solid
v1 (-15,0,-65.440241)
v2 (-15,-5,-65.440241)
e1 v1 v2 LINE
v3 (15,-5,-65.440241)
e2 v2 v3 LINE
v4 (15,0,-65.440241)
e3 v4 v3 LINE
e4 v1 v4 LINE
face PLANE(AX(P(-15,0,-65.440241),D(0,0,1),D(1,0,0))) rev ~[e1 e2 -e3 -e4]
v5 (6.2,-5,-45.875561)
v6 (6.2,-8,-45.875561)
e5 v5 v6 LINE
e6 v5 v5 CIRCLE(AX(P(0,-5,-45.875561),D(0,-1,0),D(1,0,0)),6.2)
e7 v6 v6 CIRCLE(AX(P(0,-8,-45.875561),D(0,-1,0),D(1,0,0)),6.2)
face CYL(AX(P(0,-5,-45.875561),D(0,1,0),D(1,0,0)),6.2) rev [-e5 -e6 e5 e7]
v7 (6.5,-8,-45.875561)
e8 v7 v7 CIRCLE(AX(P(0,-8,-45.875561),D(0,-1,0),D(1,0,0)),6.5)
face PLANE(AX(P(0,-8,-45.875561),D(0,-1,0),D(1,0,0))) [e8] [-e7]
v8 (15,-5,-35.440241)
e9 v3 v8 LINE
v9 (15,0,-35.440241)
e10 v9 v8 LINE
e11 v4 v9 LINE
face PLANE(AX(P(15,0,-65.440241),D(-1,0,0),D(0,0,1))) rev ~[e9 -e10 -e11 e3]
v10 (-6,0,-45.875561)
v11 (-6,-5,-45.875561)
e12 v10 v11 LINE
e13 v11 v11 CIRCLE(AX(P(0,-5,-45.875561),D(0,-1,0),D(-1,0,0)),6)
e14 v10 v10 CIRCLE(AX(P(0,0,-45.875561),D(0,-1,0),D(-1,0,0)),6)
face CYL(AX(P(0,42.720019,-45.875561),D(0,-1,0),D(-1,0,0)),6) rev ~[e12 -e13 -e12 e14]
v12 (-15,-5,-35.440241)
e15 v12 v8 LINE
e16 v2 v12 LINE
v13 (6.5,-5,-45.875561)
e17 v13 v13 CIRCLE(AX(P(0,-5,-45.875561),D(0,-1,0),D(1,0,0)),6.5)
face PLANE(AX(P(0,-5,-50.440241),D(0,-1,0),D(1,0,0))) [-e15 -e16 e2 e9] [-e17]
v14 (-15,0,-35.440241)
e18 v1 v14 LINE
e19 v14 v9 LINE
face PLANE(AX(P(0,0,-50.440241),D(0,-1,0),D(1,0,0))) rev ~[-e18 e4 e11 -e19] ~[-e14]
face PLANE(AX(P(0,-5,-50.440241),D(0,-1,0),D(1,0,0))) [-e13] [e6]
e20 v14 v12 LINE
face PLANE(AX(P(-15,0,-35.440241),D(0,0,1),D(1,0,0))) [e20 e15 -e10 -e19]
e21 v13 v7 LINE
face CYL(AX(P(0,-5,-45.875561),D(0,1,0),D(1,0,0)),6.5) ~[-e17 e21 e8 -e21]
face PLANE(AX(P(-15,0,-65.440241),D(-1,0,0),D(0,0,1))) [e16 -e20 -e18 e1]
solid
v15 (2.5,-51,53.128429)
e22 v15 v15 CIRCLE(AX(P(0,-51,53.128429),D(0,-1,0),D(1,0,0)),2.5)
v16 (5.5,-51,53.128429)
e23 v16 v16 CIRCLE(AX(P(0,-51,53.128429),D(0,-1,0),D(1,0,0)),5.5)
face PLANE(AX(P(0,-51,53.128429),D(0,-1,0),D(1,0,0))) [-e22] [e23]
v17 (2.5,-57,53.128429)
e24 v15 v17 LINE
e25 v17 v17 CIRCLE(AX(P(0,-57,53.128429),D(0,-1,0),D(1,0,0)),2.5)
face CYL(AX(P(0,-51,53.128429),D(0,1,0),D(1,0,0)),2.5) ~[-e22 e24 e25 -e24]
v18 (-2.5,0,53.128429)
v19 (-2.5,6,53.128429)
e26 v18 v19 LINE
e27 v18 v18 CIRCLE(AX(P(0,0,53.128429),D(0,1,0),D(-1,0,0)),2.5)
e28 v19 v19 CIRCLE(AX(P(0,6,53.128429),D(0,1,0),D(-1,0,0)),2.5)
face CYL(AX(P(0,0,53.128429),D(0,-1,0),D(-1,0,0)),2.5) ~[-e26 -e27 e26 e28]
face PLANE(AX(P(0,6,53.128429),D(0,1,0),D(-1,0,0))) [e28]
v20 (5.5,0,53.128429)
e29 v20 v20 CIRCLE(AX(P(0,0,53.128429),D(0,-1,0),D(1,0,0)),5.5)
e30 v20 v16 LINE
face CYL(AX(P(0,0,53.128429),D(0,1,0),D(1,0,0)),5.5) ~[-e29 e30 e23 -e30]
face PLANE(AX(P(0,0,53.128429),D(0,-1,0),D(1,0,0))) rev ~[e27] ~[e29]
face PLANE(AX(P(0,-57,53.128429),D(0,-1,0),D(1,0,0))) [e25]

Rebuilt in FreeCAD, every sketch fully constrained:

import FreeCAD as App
import Part
import Sketcher
from FreeCAD import Vector
Q = App.Units.Quantity

doc = App.newDocument("Part")
body = doc.addObject("PartDesign::Body", "Body")

# Sketch on XZ plane
sketch1 = body.newObject("Sketcher::SketchObject", "Sketch")
sketch1.AttachmentSupport = (doc.getObject("XZ_Plane"), [""])
sketch1.MapMode = "FlatFace"
sketch1.addGeometry([
    Part.Circle(Vector(0, 0, 0), Vector(0, 0, 1), 6),
    Part.Circle(Vector(0, 0, 0), Vector(0, 0, 1), 6),
], False)
sketch1.addConstraint([
    Sketcher.Constraint("Coincident", 0, 3, -1, 1),
    Sketcher.Constraint("Coincident", 1, 3, -1, 1),
    Sketcher.Constraint("Diameter", 0, Q("12 mm")),
    Sketcher.Constraint("Diameter", 1, Q("11.4 mm")),
])
pad1 = body.newObject("PartDesign::Pad", "Pad")
pad1.Profile = sketch1
pad1.Length = 50
body2 = doc.addObject("PartDesign::Body", "Body001")

# Sketch on XZ plane
sketch2 = body2.newObject("Sketcher::SketchObject", "Sketch001")
sketch2.AttachmentSupport = (doc.getObject("XZ_Plane001"), [""])
sketch2.MapMode = "FlatFace"
sketch2.addGeometry(Part.Circle(Vector(0, 53, 0), Vector(0, 0, 1), 6), False)
sketch2.addConstraint([
    Sketcher.Constraint("PointOnObject", 0, 3, -2),
    Sketcher.Constraint("Diameter", 0, Q("11 mm")),
    Sketcher.Constraint("DistanceY", -1, 1, 0, 3, Q("53.128429 mm")),
])
pad2 = body2.newObject("PartDesign::Pad", "Pad001")
pad2.Profile = sketch2
pad2.Length = 51

# Sketch on XZ plane
sketch3 = body2.newObject("Sketcher::SketchObject", "Sketch002")
sketch3.AttachmentSupport = (doc.getObject("XZ_Plane001"), [""])
sketch3.MapMode = "FlatFace"
sketch3.AttachmentOffset = App.Placement(Vector(0, 0, 51), App.Rotation())
sketch3.addGeometry(Part.Circle(Vector(0, 53.1, 0), Vector(0, 0, 1), 2.5), False)
sketch3.addConstraint([
    Sketcher.Constraint("PointOnObject", 0, 3, -2),
    Sketcher.Constraint("Diameter", 0, Q("5 mm")),
    Sketcher.Constraint("DistanceY", -1, 1, 0, 3, Q("53.128429 mm")),
])
pad3 = body2.newObject("PartDesign::Pad", "Pad002")
pad3.Profile = sketch3
pad3.Length = 6

# Sketch on XZ plane
sketch4 = body2.newObject("Sketcher::SketchObject", "Sketch003")
sketch4.AttachmentSupport = (doc.getObject("XZ_Plane001"), [""])
sketch4.MapMode = "FlatFace"
sketch4.addGeometry(Part.Circle(Vector(0, 53.1, 0), Vector(0, 0, 1), 2.5), False)
sketch4.addConstraint([
    Sketcher.Constraint("PointOnObject", 0, 3, -2),
    Sketcher.Constraint("Diameter", 0, Q("5 mm")),
    Sketcher.Constraint("DistanceY", -1, 1, 0, 3, Q("53.128429 mm")),
])
pad4 = body2.newObject("PartDesign::Pad", "Pad003")
pad4.Profile = sketch4
pad4.Length = 6
pad4.Reversed = True
body3 = doc.addObject("PartDesign::Body", "Body002")

# Sketch on XZ plane
sketch5 = body3.newObject("Sketcher::SketchObject", "Sketch004")
sketch5.AttachmentSupport = (doc.getObject("XZ_Plane002"), [""])
sketch5.MapMode = "FlatFace"
sketch5.addGeometry(Part.Circle(Vector(0, 22, 0), Vector(0, 0, 1), 8), False)
sketch5.addConstraint([
    Sketcher.Constraint("PointOnObject", 0, 3, -2),
    Sketcher.Constraint("Diameter", 0, Q("17 mm")),
    Sketcher.Constraint("DistanceY", -1, 1, 0, 3, Q("21.613053 mm")),
])
pad5 = body3.newObject("PartDesign::Pad", "Pad004")
pad5.Profile = sketch5
pad5.Length = 4

# Sketch on XZ plane
sketch6 = body3.newObject("Sketcher::SketchObject", "Sketch005")
sketch6.AttachmentSupport = (doc.getObject("XZ_Plane002"), [""])
sketch6.MapMode = "FlatFace"
sketch6.AttachmentOffset = App.Placement(Vector(0, 0, 4), App.Rotation())
sketch6.addGeometry(Part.Circle(Vector(0, 22, 0), Vector(0, 0, 1), 6), False)
sketch6.addConstraint([
    Sketcher.Constraint("PointOnObject", 0, 3, -2),
    Sketcher.Constraint("Diameter", 0, Q("11 mm")),
    Sketcher.Constraint("DistanceY", -1, 1, 0, 3, Q("21.613053 mm")),
])
pad6 = body3.newObject("PartDesign::Pad", "Pad005")
pad6.Profile = sketch6
pad6.Length = 39

# Sketch on XZ plane
sketch7 = body3.newObject("Sketcher::SketchObject", "Sketch006")
sketch7.AttachmentSupport = (doc.getObject("XZ_Plane002"), [""])
sketch7.MapMode = "FlatFace"
sketch7.AttachmentOffset = App.Placement(Vector(0, 0, 43), App.Rotation())
sketch7.addGeometry(Part.Circle(Vector(0, 21.6, 0), Vector(0, 0, 1), 2.5), False)
sketch7.addConstraint([
    Sketcher.Constraint("PointOnObject", 0, 3, -2),
    Sketcher.Constraint("Diameter", 0, Q("5 mm")),
    Sketcher.Constraint("DistanceY", -1, 1, 0, 3, Q("21.613053 mm")),
])
doc.recompute()
hole = body3.newObject("PartDesign::Hole", "Hole")
hole.Profile = sketch7
hole.ThreadType = "None"
hole.Diameter = 5
hole.DepthType = "Dimension"
hole.Depth = 8
hole.DrillPoint = "Angled"
hole.DrillPointAngle = 118
body4 = doc.addObject("PartDesign::Body", "Body003")

# Sketch on XZ plane
sketch8 = body4.newObject("Sketcher::SketchObject", "Sketch007")
sketch8.AttachmentSupport = (doc.getObject("XZ_Plane003"), [""])
sketch8.MapMode = "FlatFace"
sketch8.addGeometry([
    Part.LineSegment(Vector(-15, -35, 0), Vector(-15, -65, 0)),
    Part.LineSegment(Vector(-15, -65, 0), Vector(15, -65, 0)),
    Part.LineSegment(Vector(15, -65, 0), Vector(15, -35, 0)),
    Part.LineSegment(Vector(15, -35, 0), Vector(-15, -35, 0)),
], False)
sketch8.addConstraint([
    Sketcher.Constraint("Coincident", 0, 2, 1, 1),
    Sketcher.Constraint("Coincident", 1, 2, 2, 1),
    Sketcher.Constraint("Coincident", 2, 2, 3, 1),
    Sketcher.Constraint("Coincident", 3, 2, 0, 1),
    Sketcher.Constraint("Vertical", 0),
    Sketcher.Constraint("Horizontal", 1),
    Sketcher.Constraint("Vertical", 2),
    Sketcher.Constraint("Horizontal", 3),
    Sketcher.Constraint("Equal", 3, 0),
    Sketcher.Constraint("DistanceX", 1, 1, 1, 2, Q("30 mm")),
    Sketcher.Constraint("DistanceX", 0, 2, -1, 1, Q("15 mm")),
    Sketcher.Constraint("DistanceY", 0, 2, -1, 1, Q("65.440241 mm")),
])
pad7 = body4.newObject("PartDesign::Pad", "Pad006")
pad7.Profile = sketch8
pad7.Length = 5

# Sketch on XZ plane
sketch9 = body4.newObject("Sketcher::SketchObject", "Sketch008")
sketch9.AttachmentSupport = (doc.getObject("XZ_Plane003"), [""])
sketch9.MapMode = "FlatFace"
sketch9.addGeometry(Part.Circle(Vector(0, -46, 0), Vector(0, 0, 1), 6), False)
sketch9.addConstraint([
    Sketcher.Constraint("PointOnObject", 0, 3, -2),
    Sketcher.Constraint("Diameter", 0, Q("12 mm")),
    Sketcher.Constraint("DistanceY", 0, 3, -1, 1, Q("45.875561 mm")),
])
doc.recompute()
hole2 = body4.newObject("PartDesign::Hole", "Hole001")
hole2.Profile = sketch9
hole2.ThreadType = "None"
hole2.Diameter = 12
hole2.DepthType = "ThroughAll"
hole2.Reversed = True

# Sketch on XZ plane
sketch10 = body4.newObject("Sketcher::SketchObject", "Sketch009")
sketch10.AttachmentSupport = (doc.getObject("XZ_Plane003"), [""])
sketch10.MapMode = "FlatFace"
sketch10.AttachmentOffset = App.Placement(Vector(0, 0, 5), App.Rotation())
sketch10.addGeometry([
    Part.Circle(Vector(0, -46, 0), Vector(0, 0, 1), 6),
    Part.Circle(Vector(0, -46, 0), Vector(0, 0, 1), 6),
], False)
sketch10.addConstraint([
    Sketcher.Constraint("Coincident", 1, 3, 0, 3),
    Sketcher.Constraint("PointOnObject", 0, 3, -2),
    Sketcher.Constraint("Diameter", 0, Q("13 mm")),
    Sketcher.Constraint("Diameter", 1, Q("12.4 mm")),
    Sketcher.Constraint("DistanceY", 0, 3, -1, 1, Q("45.875561 mm")),
])
pad8 = body4.newObject("PartDesign::Pad", "Pad007")
pad8.Profile = sketch10
pad8.Length = 3
body5 = doc.addObject("PartDesign::Body", "Body004")
doc.recompute()

body5.BaseFeature = body2
doc.recompute()
body.Visibility = False
body2.Visibility = False
body3.Visibility = False

doc.recompute()
